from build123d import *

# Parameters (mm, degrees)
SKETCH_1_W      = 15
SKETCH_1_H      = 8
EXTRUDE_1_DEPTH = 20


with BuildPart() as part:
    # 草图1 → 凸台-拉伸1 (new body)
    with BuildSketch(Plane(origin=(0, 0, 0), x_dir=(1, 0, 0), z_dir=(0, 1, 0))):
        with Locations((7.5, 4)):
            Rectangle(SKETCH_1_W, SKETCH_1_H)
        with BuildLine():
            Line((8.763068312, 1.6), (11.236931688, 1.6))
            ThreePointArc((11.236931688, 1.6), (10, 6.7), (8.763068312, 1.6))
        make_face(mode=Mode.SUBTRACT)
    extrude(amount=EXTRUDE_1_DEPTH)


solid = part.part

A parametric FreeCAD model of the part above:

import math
import FreeCAD as App
import Part
import Sketcher
Q = App.Units.Quantity


def add_polygon(sketch, points):
    """Adds a closed chain of lines whose ends are joined by coincident constraints."""
    first, n = sketch.GeometryCount, len(points)
    for a, b in zip(points, points[1:] + points[:1]):
        sketch.addGeometry(Part.LineSegment(App.Vector(*a, 0), App.Vector(*b, 0)), False)
    for i in range(n):
        sketch.addConstraint(Sketcher.Constraint("Coincident", first + i, 2, first + (i + 1) % n, 1))

doc = App.newDocument("Part")
body = doc.addObject("PartDesign::Body", "Body")

sketch1 = body.newObject("Sketcher::SketchObject", "Sketch")
sketch1.AttachmentSupport = (doc.getObject("XZ_Plane"), [""])
sketch1.MapMode = "FlatFace"
add_polygon(sketch1, [(0, -8), (0, 0), (15, 0), (15, -8)])
sketch1.addGeometry(Part.LineSegment(App.Vector(11.2, -1.6, 0), App.Vector(8.8, -1.6, 0)), False)
sketch1.addGeometry(Part.ArcOfCircle(Part.Circle(App.Vector(10, -4, 0), App.Vector(0, 0, 1), 2.7), math.radians(117), math.radians(423)), False)
sketch1.addConstraint(Sketcher.Constraint("Coincident", 4, 1, 5, 2))
sketch1.addConstraint(Sketcher.Constraint("Coincident", 5, 1, 4, 2))
sketch1.addConstraint(Sketcher.Constraint("Vertical", 0))
sketch1.addConstraint(Sketcher.Constraint("Horizontal", 1))
sketch1.addConstraint(Sketcher.Constraint("Vertical", 2))
sketch1.addConstraint(Sketcher.Constraint("Horizontal", 3))
sketch1.addConstraint(Sketcher.Constraint("Horizontal", 4))
sketch1.addConstraint(Sketcher.Constraint("Coincident", 0, 2, -1, 1))
sketch1.addConstraint(Sketcher.Constraint("Radius", 5, Q("2.7 mm")))
sketch1.addConstraint(Sketcher.Constraint("DistanceX", 1, 1, 1, 2, Q("15 mm")))
sketch1.addConstraint(Sketcher.Constraint("DistanceY", 0, 1, 0, 2, Q("8 mm")))
sketch1.addConstraint(Sketcher.Constraint("DistanceX", -1, 1, 5, 3, Q("10 mm")))
sketch1.addConstraint(Sketcher.Constraint("DistanceY", 5, 3, -1, 1, Q("4 mm")))
sketch1.addConstraint(Sketcher.Constraint("DistanceY", 4, 1, -1, 1, Q("1.6 mm")))
pad1 = body.newObject("PartDesign::Pad", "Pad")
pad1.Profile = sketch1
pad1.Length = 20
pad1.Reversed = True

doc.recompute()
